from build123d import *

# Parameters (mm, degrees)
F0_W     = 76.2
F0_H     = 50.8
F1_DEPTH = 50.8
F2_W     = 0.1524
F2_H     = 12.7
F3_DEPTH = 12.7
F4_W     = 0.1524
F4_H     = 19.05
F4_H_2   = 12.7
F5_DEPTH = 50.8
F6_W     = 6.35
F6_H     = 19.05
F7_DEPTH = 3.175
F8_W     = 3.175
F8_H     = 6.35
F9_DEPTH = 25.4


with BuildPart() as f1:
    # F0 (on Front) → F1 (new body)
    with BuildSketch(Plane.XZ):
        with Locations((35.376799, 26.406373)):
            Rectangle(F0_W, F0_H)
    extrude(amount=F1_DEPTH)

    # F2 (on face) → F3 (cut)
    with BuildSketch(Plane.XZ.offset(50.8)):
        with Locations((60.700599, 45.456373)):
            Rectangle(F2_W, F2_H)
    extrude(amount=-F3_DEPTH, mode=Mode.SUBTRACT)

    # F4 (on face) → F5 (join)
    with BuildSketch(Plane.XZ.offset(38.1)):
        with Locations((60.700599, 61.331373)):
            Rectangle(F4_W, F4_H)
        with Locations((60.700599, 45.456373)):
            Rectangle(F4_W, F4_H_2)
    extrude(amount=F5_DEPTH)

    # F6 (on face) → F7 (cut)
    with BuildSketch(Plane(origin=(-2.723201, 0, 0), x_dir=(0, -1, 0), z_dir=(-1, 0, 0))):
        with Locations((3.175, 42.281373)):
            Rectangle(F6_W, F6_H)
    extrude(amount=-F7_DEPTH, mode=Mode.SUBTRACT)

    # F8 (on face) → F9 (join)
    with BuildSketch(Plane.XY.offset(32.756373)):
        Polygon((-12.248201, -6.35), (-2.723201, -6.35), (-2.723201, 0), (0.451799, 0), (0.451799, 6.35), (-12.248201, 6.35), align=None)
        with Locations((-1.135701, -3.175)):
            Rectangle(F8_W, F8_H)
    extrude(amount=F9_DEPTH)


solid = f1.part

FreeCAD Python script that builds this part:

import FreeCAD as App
import Part
import Sketcher
Q = App.Units.Quantity


def add_polygon(sketch, points):
    """Adds a closed chain of lines whose ends are joined by coincident constraints."""
    first, n = sketch.GeometryCount, len(points)
    for a, b in zip(points, points[1:] + points[:1]):
        sketch.addGeometry(Part.LineSegment(App.Vector(*a, 0), App.Vector(*b, 0)), False)
    for i in range(n):
        sketch.addConstraint(Sketcher.Constraint("Coincident", first + i, 2, first + (i + 1) % n, 1))

doc = App.newDocument("Part")
body = doc.addObject("PartDesign::Body", "Body")

sketch1 = body.newObject("Sketcher::SketchObject", "Sketch")
sketch1.AttachmentSupport = (doc.getObject("XZ_Plane"), [""])
sketch1.MapMode = "FlatFace"
add_polygon(sketch1, [(-2.723201, 51.806373), (-2.723201, 1.006373), (73.476799, 1.006373), (73.476799, 51.806373)])
sketch1.addConstraint([
    Sketcher.Constraint("Vertical", 0),
    Sketcher.Constraint("Horizontal", 1),
    Sketcher.Constraint("Vertical", 2),
    Sketcher.Constraint("Horizontal", 3),
    Sketcher.Constraint("DistanceX", 1, 1, 1, 2, Q("3 in")),
    Sketcher.Constraint("DistanceY", 0, 2, 0, 1, Q("2 in")),
    Sketcher.Constraint("DistanceX", 0, 2, -1, 1, 2.723201),
    Sketcher.Constraint("DistanceY", -1, 1, 0, 2, 1.006373),
])
pad1 = body.newObject("PartDesign::Pad", "Pad")
pad1.Profile = sketch1
pad1.Length = Q("2 in")

sketch2 = body.newObject("Sketcher::SketchObject", "Sketch001")
sketch2.AttachmentSupport = (doc.getObject("XZ_Plane"), [""])
sketch2.MapMode = "FlatFace"
sketch2.AttachmentOffset = App.Placement(App.Vector(0, 0, 2 * 25.4), App.Rotation())
add_polygon(sketch2, [(60.624399, 51.806373), (60.624399, 39.106373), (60.776799, 39.106373), (60.776799, 51.806373)])
sketch2.addConstraint([
    Sketcher.Constraint("Vertical", 0),
    Sketcher.Constraint("Horizontal", 1),
    Sketcher.Constraint("Vertical", 2),
    Sketcher.Constraint("Horizontal", 3),
    Sketcher.Constraint("DistanceY", 0, 2, 0, 1, Q("0.5 in")),
    Sketcher.Constraint("DistanceX", 1, 1, 1, 2, Q("0.006 in")),
    Sketcher.Constraint("DistanceX", -1, 1, 0, 2, 60.624399),
    Sketcher.Constraint("DistanceY", -1, 1, 0, 2, 39.106373),
])
pocket1 = body.newObject("PartDesign::Pocket", "Pocket")
pocket1.Profile = sketch2
pocket1.Length = Q("0.5 in")

sketch3 = body.newObject("Sketcher::SketchObject", "Sketch002")
sketch3.AttachmentSupport = (doc.getObject("XZ_Plane"), [""])
sketch3.MapMode = "FlatFace"
sketch3.AttachmentOffset = App.Placement(App.Vector(0, 0, 1.5 * 25.4), App.Rotation())
add_polygon(sketch3, [(60.624399, 70.856373), (60.624399, 39.106373), (60.776799, 39.106373), (60.776799, 70.856373)])
sketch3.addConstraint([
    Sketcher.Constraint("Vertical", 0),
    Sketcher.Constraint("Horizontal", 1),
    Sketcher.Constraint("Vertical", 2),
    Sketcher.Constraint("Horizontal", 3),
    Sketcher.Constraint("DistanceY", 0, 2, 0, 1, Q("1.25 in")),
    Sketcher.Constraint("DistanceX", 1, 1, 1, 2, Q("0.006 in")),
    Sketcher.Constraint("DistanceX", -1, 1, 0, 2, 60.624399),
    Sketcher.Constraint("DistanceY", -1, 1, 0, 2, 39.106373),
])
pad2 = body.newObject("PartDesign::Pad", "Pad001")
pad2.Profile = sketch3
pad2.Length = Q("2 in")

sketch4 = body.newObject("Sketcher::SketchObject", "Sketch003")
sketch4.AttachmentSupport = (doc.getObject("YZ_Plane"), [""])
sketch4.MapMode = "FlatFace"
sketch4.AttachmentOffset = App.Placement(App.Vector(0, 0, -2.723201), App.Rotation())
add_polygon(sketch4, [(0, 51.806373), (0, 32.756373), (-6.35, 32.756373), (-6.35, 51.806373)])
sketch4.addConstraint([
    Sketcher.Constraint("Vertical", 0),
    Sketcher.Constraint("Horizontal", 1),
    Sketcher.Constraint("Vertical", 2),
    Sketcher.Constraint("Horizontal", 3),
    Sketcher.Constraint("PointOnObject", 0, 2, -2),
    Sketcher.Constraint("DistanceX", 1, 2, 1, 1, Q("0.25 in")),
    Sketcher.Constraint("DistanceY", 0, 2, 0, 1, Q("0.75 in")),
    Sketcher.Constraint("DistanceY", -1, 1, 0, 2, 32.756373),
])
pocket2 = body.newObject("PartDesign::Pocket", "Pocket001")
pocket2.Profile = sketch4
pocket2.Length = Q("0.125 in")
pocket2.Reversed = True

sketch5 = body.newObject("Sketcher::SketchObject", "Sketch004")
sketch5.AttachmentSupport = (doc.getObject("XY_Plane"), [""])
sketch5.MapMode = "FlatFace"
sketch5.AttachmentOffset = App.Placement(App.Vector(0, 0, 32.756373), App.Rotation())
add_polygon(sketch5, [(-12.248201, -6.35), (0.451799, -6.35), (0.451799, 6.35), (-12.248201, 6.35)])
sketch5.addConstraint([
    Sketcher.Constraint("Horizontal", 0),
    Sketcher.Constraint("Vertical", 1),
    Sketcher.Constraint("Horizontal", 2),
    Sketcher.Constraint("Vertical", 3),
    Sketcher.Constraint("Equal", 2, 1),
    Sketcher.Constraint("DistanceX", 0, 1, 0, 2, Q("0.5 in")),
    Sketcher.Constraint("DistanceY", 0, 2, -1, 1, Q("0.25 in")),
    Sketcher.Constraint("DistanceX", -1, 1, 0, 2, 0.451799),
])
pad3 = body.newObject("PartDesign::Pad", "Pad002")
pad3.Profile = sketch5
pad3.Length = Q("1 in")

doc.recompute()
